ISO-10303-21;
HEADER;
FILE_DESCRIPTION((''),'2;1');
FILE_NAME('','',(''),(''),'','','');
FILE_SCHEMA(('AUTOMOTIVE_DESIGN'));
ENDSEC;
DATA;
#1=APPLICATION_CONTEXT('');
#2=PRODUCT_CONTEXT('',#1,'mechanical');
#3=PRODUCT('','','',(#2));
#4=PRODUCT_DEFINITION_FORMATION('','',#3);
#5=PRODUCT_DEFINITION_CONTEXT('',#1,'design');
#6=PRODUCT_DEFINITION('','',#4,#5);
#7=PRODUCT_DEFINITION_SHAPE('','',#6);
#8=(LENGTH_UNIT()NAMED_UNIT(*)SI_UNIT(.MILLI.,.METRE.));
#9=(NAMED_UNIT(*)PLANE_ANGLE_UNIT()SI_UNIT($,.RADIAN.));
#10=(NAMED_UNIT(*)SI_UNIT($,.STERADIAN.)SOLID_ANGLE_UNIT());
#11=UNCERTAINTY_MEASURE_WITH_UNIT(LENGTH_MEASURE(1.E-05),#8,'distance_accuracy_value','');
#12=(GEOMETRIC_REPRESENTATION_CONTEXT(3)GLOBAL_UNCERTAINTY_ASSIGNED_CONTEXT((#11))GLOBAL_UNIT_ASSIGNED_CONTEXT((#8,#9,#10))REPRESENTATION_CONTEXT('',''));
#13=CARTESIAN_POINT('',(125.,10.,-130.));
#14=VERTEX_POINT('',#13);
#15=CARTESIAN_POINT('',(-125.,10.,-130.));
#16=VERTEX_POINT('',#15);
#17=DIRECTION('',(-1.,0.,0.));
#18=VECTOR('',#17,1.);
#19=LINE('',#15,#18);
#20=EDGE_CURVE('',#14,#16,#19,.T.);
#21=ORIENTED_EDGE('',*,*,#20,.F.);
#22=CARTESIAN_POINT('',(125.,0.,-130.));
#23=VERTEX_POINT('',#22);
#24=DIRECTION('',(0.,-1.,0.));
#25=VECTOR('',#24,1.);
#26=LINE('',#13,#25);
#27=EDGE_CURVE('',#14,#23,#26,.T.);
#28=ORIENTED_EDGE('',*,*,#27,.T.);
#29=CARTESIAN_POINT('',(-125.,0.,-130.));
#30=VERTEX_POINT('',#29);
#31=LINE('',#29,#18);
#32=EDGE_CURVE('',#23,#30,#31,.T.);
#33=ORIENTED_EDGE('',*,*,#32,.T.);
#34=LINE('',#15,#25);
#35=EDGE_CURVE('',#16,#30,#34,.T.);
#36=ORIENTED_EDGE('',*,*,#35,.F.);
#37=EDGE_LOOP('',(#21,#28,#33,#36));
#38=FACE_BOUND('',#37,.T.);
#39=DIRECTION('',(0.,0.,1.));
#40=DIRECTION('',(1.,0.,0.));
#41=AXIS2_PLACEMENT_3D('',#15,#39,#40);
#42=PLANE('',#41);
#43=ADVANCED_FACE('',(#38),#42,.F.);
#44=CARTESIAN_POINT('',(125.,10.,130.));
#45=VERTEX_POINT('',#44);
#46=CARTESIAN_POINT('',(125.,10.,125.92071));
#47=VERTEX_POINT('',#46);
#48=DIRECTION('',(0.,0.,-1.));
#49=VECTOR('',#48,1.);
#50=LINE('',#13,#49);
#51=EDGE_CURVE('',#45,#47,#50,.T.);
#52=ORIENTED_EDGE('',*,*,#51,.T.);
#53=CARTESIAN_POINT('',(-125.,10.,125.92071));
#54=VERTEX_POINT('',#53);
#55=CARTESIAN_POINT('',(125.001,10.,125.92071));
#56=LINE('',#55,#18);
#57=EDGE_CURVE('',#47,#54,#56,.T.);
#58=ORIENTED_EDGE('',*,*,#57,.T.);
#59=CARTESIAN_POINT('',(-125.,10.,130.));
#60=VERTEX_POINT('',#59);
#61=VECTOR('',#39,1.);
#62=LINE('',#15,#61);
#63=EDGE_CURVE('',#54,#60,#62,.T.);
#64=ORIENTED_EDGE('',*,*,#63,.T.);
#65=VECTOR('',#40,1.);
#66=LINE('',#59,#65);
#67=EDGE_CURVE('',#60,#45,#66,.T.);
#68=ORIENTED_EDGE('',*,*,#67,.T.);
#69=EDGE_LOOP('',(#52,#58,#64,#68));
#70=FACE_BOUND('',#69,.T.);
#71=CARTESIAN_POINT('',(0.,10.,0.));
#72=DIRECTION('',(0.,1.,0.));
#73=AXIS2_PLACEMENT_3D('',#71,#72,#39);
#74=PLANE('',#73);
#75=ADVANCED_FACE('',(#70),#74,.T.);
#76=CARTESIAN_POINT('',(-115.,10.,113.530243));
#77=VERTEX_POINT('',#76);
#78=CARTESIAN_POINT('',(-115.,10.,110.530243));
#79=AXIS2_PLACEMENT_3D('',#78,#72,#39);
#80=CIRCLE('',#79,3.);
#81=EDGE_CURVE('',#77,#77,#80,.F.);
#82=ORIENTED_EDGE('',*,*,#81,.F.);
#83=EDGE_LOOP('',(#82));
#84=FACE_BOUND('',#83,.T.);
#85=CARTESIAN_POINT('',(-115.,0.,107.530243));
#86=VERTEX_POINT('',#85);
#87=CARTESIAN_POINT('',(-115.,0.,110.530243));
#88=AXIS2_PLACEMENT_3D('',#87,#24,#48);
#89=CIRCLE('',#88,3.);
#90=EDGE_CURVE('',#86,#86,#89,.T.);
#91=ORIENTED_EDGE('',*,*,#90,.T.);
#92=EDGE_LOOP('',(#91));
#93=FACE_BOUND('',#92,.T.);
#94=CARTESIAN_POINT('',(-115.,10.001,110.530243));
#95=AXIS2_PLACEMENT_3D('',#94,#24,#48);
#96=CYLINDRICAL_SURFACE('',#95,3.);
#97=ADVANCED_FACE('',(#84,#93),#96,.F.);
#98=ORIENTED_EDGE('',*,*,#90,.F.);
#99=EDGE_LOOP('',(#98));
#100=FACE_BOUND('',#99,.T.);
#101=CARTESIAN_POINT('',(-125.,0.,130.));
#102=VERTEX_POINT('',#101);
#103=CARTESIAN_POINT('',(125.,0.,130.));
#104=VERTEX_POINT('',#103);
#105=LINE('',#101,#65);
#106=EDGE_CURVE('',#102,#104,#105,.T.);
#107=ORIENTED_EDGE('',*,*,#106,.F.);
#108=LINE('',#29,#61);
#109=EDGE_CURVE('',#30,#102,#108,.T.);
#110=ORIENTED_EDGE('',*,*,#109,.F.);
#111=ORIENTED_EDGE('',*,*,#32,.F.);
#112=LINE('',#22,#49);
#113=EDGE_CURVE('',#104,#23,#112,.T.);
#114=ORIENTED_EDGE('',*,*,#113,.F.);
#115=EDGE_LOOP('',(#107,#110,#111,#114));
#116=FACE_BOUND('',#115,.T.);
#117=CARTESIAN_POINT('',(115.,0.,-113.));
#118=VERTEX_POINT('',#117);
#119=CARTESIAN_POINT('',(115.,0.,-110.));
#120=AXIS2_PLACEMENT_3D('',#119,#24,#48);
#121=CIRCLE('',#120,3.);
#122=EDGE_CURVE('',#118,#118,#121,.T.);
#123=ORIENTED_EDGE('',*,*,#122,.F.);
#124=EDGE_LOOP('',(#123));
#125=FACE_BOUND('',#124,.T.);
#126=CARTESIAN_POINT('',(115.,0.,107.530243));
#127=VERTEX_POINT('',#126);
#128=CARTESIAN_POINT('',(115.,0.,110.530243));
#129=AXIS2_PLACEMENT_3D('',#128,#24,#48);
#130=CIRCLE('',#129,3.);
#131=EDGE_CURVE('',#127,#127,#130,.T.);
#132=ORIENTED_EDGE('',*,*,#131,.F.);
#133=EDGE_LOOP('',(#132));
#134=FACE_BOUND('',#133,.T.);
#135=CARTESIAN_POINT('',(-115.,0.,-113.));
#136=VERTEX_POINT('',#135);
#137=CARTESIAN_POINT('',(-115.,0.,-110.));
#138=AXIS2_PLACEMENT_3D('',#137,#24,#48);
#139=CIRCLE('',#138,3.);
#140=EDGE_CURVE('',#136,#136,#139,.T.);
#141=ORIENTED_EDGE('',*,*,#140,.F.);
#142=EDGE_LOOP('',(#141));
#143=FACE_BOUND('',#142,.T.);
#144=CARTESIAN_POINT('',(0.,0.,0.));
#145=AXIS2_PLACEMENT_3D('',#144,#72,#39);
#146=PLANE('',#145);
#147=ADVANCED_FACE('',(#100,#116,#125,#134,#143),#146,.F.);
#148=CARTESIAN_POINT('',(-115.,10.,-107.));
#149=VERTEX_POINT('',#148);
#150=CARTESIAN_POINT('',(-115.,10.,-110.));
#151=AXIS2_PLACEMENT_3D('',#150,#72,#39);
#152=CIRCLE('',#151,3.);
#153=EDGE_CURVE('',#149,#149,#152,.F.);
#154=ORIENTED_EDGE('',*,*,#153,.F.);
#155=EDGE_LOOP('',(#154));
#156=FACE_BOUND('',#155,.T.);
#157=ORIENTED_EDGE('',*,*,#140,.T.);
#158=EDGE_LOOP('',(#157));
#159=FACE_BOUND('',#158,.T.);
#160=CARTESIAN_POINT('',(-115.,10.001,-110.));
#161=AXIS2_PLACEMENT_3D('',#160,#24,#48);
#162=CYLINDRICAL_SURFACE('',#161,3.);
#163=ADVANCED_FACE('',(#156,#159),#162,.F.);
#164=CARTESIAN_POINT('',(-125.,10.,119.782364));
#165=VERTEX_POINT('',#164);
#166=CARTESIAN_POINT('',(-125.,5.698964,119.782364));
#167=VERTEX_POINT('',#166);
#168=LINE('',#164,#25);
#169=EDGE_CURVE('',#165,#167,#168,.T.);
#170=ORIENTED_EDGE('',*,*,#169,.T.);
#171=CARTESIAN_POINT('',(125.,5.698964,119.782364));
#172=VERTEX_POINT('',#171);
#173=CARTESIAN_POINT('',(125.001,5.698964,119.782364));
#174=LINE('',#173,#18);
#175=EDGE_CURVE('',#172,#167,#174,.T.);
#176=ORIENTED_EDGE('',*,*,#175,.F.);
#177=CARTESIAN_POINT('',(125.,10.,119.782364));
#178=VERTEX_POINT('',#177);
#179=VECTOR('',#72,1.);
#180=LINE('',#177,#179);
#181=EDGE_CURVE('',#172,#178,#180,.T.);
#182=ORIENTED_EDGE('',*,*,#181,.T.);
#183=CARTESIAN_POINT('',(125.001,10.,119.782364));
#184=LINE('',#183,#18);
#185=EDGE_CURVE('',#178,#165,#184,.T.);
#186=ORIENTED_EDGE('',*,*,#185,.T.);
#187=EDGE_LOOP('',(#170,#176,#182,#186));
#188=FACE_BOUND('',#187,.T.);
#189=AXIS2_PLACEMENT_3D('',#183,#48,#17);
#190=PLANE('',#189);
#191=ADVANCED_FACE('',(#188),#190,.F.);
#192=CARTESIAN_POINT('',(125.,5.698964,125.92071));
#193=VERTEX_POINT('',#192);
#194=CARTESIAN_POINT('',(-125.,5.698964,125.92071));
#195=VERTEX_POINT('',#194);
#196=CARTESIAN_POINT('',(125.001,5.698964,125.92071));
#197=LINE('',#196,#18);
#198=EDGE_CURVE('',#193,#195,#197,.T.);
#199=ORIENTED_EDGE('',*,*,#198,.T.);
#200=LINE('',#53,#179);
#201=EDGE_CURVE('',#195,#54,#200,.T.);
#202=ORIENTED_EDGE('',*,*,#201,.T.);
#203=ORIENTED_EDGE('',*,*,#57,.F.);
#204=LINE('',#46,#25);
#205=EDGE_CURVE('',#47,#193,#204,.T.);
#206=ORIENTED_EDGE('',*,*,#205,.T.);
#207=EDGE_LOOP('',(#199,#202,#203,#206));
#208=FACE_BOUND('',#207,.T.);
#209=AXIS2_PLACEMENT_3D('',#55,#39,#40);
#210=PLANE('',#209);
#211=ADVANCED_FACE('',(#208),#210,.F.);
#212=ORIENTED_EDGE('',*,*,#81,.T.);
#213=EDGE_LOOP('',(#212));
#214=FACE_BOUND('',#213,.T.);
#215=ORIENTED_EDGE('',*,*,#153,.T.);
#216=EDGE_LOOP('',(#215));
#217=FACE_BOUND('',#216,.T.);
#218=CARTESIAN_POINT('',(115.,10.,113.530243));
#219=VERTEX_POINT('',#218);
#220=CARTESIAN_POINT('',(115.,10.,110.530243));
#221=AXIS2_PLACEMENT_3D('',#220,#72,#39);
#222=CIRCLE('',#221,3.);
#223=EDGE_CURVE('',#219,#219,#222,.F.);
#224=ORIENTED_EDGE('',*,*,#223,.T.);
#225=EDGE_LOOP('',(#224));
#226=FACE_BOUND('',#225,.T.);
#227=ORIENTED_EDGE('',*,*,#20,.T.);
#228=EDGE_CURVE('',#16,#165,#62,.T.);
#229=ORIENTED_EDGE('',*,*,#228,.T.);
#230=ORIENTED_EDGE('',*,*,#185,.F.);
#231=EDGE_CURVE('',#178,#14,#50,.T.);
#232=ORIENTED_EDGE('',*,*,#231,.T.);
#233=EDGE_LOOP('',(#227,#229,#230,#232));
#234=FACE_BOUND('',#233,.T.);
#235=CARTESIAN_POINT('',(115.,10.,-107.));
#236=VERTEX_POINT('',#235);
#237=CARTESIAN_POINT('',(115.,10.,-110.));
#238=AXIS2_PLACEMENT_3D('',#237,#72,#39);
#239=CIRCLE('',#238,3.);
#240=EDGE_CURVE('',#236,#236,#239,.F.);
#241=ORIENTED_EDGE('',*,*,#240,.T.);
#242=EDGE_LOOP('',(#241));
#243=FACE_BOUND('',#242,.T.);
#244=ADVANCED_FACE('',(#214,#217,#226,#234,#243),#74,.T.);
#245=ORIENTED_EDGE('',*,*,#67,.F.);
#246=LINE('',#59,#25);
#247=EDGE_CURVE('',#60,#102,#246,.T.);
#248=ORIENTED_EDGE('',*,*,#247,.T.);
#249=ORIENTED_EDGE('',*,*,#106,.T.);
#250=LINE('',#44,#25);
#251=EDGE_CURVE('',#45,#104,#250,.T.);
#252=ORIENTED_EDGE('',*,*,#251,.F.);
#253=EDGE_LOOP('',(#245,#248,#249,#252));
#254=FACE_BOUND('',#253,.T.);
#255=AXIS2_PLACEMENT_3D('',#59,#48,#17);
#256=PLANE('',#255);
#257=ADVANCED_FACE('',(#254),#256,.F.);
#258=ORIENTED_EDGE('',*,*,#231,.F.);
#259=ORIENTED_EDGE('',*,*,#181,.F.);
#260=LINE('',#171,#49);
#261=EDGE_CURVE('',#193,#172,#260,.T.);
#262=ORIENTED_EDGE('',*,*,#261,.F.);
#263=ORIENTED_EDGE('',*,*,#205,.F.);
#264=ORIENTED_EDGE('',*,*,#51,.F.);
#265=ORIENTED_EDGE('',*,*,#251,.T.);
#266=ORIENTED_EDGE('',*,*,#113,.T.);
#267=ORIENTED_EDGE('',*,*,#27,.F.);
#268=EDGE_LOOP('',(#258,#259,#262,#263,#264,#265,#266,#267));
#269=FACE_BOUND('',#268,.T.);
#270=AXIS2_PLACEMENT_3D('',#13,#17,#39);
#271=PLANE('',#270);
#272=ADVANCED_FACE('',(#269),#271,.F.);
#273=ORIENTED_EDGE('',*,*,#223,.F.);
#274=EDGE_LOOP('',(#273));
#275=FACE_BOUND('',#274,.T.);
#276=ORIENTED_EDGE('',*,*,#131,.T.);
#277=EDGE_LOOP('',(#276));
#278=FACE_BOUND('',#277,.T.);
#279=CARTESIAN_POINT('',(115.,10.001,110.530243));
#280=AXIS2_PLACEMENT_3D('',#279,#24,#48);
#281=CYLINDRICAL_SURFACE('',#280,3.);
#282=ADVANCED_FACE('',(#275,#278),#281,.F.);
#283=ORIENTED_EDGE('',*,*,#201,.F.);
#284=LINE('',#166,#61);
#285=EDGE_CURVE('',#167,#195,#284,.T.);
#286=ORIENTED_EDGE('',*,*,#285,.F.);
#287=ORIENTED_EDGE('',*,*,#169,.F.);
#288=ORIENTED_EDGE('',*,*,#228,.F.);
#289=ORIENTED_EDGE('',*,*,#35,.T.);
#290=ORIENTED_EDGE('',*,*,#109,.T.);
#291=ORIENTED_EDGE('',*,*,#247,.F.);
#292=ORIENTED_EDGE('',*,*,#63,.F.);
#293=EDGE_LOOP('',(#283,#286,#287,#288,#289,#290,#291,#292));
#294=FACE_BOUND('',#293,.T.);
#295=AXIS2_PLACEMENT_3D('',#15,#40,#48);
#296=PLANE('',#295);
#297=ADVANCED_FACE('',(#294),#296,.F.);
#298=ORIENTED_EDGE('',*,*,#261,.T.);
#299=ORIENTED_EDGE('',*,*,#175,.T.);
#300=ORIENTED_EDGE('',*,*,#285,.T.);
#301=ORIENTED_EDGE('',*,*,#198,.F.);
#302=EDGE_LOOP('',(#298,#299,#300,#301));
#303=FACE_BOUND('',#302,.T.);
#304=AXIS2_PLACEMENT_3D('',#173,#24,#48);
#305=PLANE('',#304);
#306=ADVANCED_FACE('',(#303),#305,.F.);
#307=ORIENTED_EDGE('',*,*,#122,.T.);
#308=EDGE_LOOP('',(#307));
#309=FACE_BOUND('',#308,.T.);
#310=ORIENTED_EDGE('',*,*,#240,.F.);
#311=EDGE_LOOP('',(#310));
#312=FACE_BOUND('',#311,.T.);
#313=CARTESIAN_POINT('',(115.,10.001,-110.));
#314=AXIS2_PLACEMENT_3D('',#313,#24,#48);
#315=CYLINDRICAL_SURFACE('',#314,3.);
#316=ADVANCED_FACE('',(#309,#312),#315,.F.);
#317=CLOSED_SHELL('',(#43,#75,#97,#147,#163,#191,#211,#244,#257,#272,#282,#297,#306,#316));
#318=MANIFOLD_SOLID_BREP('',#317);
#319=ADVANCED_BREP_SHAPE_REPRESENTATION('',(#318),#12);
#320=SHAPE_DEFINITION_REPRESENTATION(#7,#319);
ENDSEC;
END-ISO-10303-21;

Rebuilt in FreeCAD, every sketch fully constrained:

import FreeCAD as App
import Part
import Sketcher

doc = App.newDocument("Part")
params = doc.addObject("Spreadsheet::Sheet", "Params")
for row, (alias, value) in enumerate([
    ("sketch1_width", "250 mm"),
    ("sketch1_height", "260 mm"),
    ("pad1_length", "10 mm"),
    ("sketch3_diameter", "6 mm"),
    ("sketch4_diameter", "6 mm"),
    ("sketch5_diameter", "6 mm"),
    ("sketch6_diameter", "6 mm"),
], start=1):
    params.set(f"A{row}", alias)
    params.set(f"B{row}", "=" + value)
    params.setAlias(f"B{row}", alias)

body = doc.addObject("PartDesign::Body", "Body")

sketch1 = body.newObject("Sketcher::SketchObject", "Sketch")
sketch1.AttachmentSupport = (doc.getObject("XZ_Plane"), [""])
sketch1.MapMode = "FlatFace"
sketch1.addGeometry([
    Part.LineSegment(App.Vector(-125, -130, 0), App.Vector(-125, 130, 0)),
    Part.LineSegment(App.Vector(-125, 130, 0), App.Vector(125, 130, 0)),
    Part.LineSegment(App.Vector(125, 130, 0), App.Vector(125, -130, 0)),
    Part.LineSegment(App.Vector(125, -130, 0), App.Vector(-125, -130, 0)),
], False)
sketch1.addConstraint([
    Sketcher.Constraint("Coincident", 0, 2, 1, 1),
    Sketcher.Constraint("Coincident", 1, 2, 2, 1),
    Sketcher.Constraint("Coincident", 2, 2, 3, 1),
    Sketcher.Constraint("Coincident", 3, 2, 0, 1),
    Sketcher.Constraint("Vertical", 0),
    Sketcher.Constraint("Horizontal", 1),
    Sketcher.Constraint("Vertical", 2),
    Sketcher.Constraint("Horizontal", 3),
    Sketcher.Constraint("Symmetric", 0, 2, 2, 2, -1, 1),
    Sketcher.Constraint("DistanceX", 1, 1, 1, 2, 250.0),
    Sketcher.Constraint("DistanceY", 0, 1, 0, 2, 260.0),
])
sketch1.setExpression("Constraints[9]", "Params.sketch1_width")
sketch1.setExpression("Constraints[10]", "Params.sketch1_height")
pad1 = body.newObject("PartDesign::Pad", "Pad")
pad1.Profile = sketch1
pad1.setExpression("Length", "Params.pad1_length")
pad1.Reversed = True

sketch2 = body.newObject("Sketcher::SketchObject", "Sketch001")
sketch2.AttachmentSupport = (doc.getObject("YZ_Plane"), [""])
sketch2.MapMode = "FlatFace"
sketch2.AttachmentOffset = App.Placement(App.Vector(0, 0, -125), App.Rotation())
sketch2.addGeometry([
    Part.LineSegment(App.Vector(10, 119.8, 0), App.Vector(5.7, 119.8, 0)),
    Part.LineSegment(App.Vector(5.7, 119.8, 0), App.Vector(5.7, 125.9, 0)),
    Part.LineSegment(App.Vector(5.7, 125.9, 0), App.Vector(10, 125.9, 0)),
    Part.LineSegment(App.Vector(10, 125.9, 0), App.Vector(10, 119.8, 0)),
], False)
sketch2.addConstraint([
    Sketcher.Constraint("Coincident", 0, 2, 1, 1),
    Sketcher.Constraint("Coincident", 1, 2, 2, 1),
    Sketcher.Constraint("Coincident", 2, 2, 3, 1),
    Sketcher.Constraint("Coincident", 3, 2, 0, 1),
    Sketcher.Constraint("Horizontal", 0),
    Sketcher.Constraint("Vertical", 1),
    Sketcher.Constraint("Horizontal", 2),
    Sketcher.Constraint("Vertical", 3),
    Sketcher.Constraint("DistanceX", -1, 1, 2, 2, 10.0),
    Sketcher.Constraint("DistanceX", 0, 2, 0, 1, 4.301036),
    Sketcher.Constraint("DistanceY", 1, 1, 1, 2, 6.138346),
    Sketcher.Constraint("DistanceY", -1, 1, 1, 2, 125.92071),
])
pocket1 = body.newObject("PartDesign::Pocket", "Pocket")
pocket1.Profile = sketch2
pocket1.Type = "UpToFirst"
pocket1.Reversed = True

sketch3 = body.newObject("Sketcher::SketchObject", "Sketch002")
sketch3.AttachmentSupport = (doc.getObject("XZ_Plane"), [""])
sketch3.MapMode = "FlatFace"
sketch3.addGeometry(Part.Circle(App.Vector(-115, 110.5, 0), App.Vector(0, 0, 1), 3), False)
sketch3.addConstraint([
    Sketcher.Constraint("Diameter", 0, 6.0),
    Sketcher.Constraint("DistanceX", 0, 3, -1, 1, 115.0),
    Sketcher.Constraint("DistanceY", -1, 1, 0, 3, 110.530243),
])
sketch3.setExpression("Constraints[0]", "Params.sketch3_diameter")
pocket2 = body.newObject("PartDesign::Pocket", "Pocket001")
pocket2.Profile = sketch3
pocket2.Type = "UpToFirst"

sketch4 = body.newObject("Sketcher::SketchObject", "Sketch003")
sketch4.AttachmentSupport = (doc.getObject("XZ_Plane"), [""])
sketch4.MapMode = "FlatFace"
sketch4.addGeometry(Part.Circle(App.Vector(115, 110.5, 0), App.Vector(0, 0, 1), 3), False)
sketch4.addConstraint([
    Sketcher.Constraint("Diameter", 0, 6.0),
    Sketcher.Constraint("DistanceX", -1, 1, 0, 3, 115.0),
    Sketcher.Constraint("DistanceY", -1, 1, 0, 3, 110.530243),
])
sketch4.setExpression("Constraints[0]", "Params.sketch4_diameter")
pocket3 = body.newObject("PartDesign::Pocket", "Pocket002")
pocket3.Profile = sketch4
pocket3.Type = "UpToFirst"

sketch5 = body.newObject("Sketcher::SketchObject", "Sketch004")
sketch5.AttachmentSupport = (doc.getObject("XZ_Plane"), [""])
sketch5.MapMode = "FlatFace"
sketch5.addGeometry(Part.Circle(App.Vector(-115, -110, 0), App.Vector(0, 0, 1), 3), False)
sketch5.addConstraint([
    Sketcher.Constraint("Diameter", 0, 6.0),
    Sketcher.Constraint("DistanceX", 0, 3, -1, 1, 115.0),
    Sketcher.Constraint("DistanceY", 0, 3, -1, 1, 110.0),
])
sketch5.setExpression("Constraints[0]", "Params.sketch5_diameter")
pocket4 = body.newObject("PartDesign::Pocket", "Pocket003")
pocket4.Profile = sketch5
pocket4.Type = "UpToFirst"

sketch6 = body.newObject("Sketcher::SketchObject", "Sketch005")
sketch6.AttachmentSupport = (doc.getObject("XZ_Plane"), [""])
sketch6.MapMode = "FlatFace"
sketch6.addGeometry(Part.Circle(App.Vector(115, -110, 0), App.Vector(0, 0, 1), 3), False)
sketch6.addConstraint([
    Sketcher.Constraint("Diameter", 0, 6.0),
    Sketcher.Constraint("DistanceX", -1, 1, 0, 3, 115.0),
    Sketcher.Constraint("DistanceY", 0, 3, -1, 1, 110.0),
])
sketch6.setExpression("Constraints[0]", "Params.sketch6_diameter")
pocket5 = body.newObject("PartDesign::Pocket", "Pocket004")
pocket5.Profile = sketch6
pocket5.Type = "UpToFirst"

doc.recompute()
